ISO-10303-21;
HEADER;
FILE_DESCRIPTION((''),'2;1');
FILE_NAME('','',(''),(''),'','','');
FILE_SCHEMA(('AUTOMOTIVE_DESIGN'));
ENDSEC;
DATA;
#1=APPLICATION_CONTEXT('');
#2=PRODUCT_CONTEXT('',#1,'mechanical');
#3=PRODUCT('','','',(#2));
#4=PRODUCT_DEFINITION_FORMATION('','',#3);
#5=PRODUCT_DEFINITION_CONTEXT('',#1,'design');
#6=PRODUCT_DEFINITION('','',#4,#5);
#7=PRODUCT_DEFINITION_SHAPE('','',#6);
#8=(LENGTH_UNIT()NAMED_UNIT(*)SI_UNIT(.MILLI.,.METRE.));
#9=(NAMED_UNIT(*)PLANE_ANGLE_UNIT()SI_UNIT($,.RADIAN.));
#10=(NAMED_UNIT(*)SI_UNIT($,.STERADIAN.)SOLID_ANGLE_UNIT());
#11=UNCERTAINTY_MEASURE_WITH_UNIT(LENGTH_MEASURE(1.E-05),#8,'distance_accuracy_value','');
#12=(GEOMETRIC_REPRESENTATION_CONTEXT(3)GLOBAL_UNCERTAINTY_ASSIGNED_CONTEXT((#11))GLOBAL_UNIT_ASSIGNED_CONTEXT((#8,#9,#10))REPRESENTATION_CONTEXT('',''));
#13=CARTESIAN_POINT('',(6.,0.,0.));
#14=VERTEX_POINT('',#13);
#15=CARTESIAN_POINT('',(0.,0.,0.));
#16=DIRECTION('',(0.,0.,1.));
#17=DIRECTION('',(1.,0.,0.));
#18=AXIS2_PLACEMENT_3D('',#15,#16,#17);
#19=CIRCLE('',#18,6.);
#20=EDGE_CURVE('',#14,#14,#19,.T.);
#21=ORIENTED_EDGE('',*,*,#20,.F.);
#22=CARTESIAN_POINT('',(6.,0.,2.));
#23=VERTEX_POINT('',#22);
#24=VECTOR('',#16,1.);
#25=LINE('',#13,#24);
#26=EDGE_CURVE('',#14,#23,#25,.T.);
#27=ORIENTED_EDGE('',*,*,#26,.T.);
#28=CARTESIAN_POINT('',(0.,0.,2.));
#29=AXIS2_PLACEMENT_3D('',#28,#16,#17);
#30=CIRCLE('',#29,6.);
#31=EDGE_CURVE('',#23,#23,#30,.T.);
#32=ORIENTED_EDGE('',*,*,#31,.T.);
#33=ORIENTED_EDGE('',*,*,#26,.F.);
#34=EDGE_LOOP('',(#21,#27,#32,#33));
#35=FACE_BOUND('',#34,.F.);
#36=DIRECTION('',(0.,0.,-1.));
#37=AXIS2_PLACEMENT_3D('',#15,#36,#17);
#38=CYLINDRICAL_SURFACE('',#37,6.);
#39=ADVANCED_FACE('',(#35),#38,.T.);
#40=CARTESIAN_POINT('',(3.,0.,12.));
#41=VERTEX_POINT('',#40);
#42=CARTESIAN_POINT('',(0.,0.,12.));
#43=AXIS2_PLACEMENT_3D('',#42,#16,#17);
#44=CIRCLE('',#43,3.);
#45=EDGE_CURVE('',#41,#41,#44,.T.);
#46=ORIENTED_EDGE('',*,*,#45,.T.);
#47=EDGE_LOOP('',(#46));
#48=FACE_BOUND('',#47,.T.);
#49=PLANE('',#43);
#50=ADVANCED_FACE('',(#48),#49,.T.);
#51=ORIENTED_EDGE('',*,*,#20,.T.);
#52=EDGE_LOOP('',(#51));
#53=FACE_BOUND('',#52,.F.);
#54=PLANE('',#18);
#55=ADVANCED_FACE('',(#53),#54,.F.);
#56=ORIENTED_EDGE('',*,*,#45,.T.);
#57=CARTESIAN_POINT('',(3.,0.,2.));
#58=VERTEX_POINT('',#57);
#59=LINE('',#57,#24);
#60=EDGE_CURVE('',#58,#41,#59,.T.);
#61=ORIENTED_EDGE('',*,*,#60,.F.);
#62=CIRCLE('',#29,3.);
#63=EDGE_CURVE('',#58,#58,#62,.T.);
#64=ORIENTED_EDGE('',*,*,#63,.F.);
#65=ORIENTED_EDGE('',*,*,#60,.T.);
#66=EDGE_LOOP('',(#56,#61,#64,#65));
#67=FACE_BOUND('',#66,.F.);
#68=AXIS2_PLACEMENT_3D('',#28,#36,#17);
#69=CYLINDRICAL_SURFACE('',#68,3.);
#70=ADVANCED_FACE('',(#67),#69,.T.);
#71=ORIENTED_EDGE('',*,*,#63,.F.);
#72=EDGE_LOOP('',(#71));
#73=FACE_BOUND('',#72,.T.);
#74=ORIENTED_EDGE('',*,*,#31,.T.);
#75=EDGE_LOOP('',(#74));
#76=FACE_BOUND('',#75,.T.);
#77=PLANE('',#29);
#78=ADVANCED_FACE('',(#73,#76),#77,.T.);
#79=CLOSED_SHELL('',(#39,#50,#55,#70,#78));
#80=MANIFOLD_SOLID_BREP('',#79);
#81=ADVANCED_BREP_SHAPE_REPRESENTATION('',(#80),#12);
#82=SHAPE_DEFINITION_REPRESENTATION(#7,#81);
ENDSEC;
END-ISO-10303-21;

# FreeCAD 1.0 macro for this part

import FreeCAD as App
import Part
import Sketcher
Q = App.Units.Quantity

doc = App.newDocument("Part")
body = doc.addObject("PartDesign::Body", "Body")

# Sketch on XY plane
sketch1 = doc.addObject("Sketcher::SketchObject", "Sketch")
body.addObject(sketch1)
sketch1.AttachmentSupport = (doc.XY_Plane, [""])
sketch1.MapMode = "FlatFace"
sketch1.addGeometry(Part.Circle(App.Vector(0, 0, 0), App.Vector(0, 0, 1), 6), False)
sketch1.addConstraint([
    Sketcher.Constraint("Coincident", 0, 3, -1, 1),
    Sketcher.Constraint("Diameter", 0, Q("12 mm")),
])
pad1 = doc.addObject("PartDesign::Pad", "Pad")
body.addObject(pad1)
pad1.Profile = sketch1
pad1.Length = 2

# Sketch on XY plane
sketch2 = doc.addObject("Sketcher::SketchObject", "Sketch001")
body.addObject(sketch2)
sketch2.AttachmentSupport = (doc.XY_Plane, [""])
sketch2.MapMode = "FlatFace"
sketch2.AttachmentOffset = App.Placement(App.Vector(0, 0, 2), App.Rotation())
sketch2.addGeometry(Part.Circle(App.Vector(0, 0, 0), App.Vector(0, 0, 1), 3), False)
sketch2.addConstraint([
    Sketcher.Constraint("Coincident", 0, 3, -1, 1),
    Sketcher.Constraint("Diameter", 0, Q("6 mm")),
])
pad2 = doc.addObject("PartDesign::Pad", "Pad001")
body.addObject(pad2)
pad2.Profile = sketch2
pad2.Length = 10

doc.recompute()
